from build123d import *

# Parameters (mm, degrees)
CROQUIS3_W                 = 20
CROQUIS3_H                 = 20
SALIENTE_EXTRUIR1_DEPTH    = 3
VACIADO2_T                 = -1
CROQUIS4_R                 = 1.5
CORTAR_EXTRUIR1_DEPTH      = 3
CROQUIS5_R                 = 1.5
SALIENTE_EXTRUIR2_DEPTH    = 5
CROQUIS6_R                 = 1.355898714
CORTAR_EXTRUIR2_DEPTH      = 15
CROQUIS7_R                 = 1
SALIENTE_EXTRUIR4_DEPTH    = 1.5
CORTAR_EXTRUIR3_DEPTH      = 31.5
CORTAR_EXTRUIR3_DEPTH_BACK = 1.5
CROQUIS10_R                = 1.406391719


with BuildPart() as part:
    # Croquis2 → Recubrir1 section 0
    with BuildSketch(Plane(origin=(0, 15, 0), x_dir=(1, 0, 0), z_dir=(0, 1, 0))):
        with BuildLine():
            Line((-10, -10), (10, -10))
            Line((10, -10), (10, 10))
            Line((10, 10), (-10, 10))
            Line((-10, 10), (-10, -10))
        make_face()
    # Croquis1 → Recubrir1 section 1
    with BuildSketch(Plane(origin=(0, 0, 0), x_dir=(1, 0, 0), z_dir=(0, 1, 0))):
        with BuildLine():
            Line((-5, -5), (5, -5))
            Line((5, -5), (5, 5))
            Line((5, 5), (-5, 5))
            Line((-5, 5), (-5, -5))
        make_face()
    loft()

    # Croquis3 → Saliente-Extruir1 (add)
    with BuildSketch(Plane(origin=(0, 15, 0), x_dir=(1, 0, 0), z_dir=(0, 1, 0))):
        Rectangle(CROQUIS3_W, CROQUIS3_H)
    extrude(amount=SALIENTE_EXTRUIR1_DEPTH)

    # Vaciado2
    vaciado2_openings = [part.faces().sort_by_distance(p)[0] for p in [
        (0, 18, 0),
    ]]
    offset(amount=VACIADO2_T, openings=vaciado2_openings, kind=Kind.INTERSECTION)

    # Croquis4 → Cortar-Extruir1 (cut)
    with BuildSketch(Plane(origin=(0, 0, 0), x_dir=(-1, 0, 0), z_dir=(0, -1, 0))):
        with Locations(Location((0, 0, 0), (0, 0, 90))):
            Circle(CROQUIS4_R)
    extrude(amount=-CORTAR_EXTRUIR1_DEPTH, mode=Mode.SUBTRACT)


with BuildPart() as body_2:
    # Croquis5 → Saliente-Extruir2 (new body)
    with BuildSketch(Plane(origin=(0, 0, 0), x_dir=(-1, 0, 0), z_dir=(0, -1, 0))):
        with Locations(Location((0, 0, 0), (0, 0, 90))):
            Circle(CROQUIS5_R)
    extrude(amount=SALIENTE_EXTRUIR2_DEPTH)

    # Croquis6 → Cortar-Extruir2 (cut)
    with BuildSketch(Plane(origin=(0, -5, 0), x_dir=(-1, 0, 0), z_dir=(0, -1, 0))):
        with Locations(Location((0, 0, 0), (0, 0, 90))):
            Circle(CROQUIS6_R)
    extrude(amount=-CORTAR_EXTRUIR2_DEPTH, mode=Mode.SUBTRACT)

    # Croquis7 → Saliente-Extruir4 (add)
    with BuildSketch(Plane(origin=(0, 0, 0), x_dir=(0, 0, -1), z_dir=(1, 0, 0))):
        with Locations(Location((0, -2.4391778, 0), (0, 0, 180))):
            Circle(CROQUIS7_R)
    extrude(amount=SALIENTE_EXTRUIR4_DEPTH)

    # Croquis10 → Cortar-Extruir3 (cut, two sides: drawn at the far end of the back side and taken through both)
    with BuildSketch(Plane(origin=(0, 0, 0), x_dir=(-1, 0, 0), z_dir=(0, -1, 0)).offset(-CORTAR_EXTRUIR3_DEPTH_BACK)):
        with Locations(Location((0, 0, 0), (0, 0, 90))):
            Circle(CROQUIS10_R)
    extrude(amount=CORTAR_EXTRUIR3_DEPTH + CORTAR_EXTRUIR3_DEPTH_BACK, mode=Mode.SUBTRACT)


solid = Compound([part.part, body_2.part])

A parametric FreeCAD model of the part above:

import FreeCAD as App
import Part
import Sketcher
Q = App.Units.Quantity


def faces_at(feature, points):
    """Names of the faces that lie closest to the given points."""
    faces = feature.Shape.Faces
    near = lambda p: min(range(len(faces)), key=lambda i: faces[i].distToShape(Part.Vertex(*p))[0])
    return sorted({f"Face{near(p) + 1}" for p in points})

doc = App.newDocument("Part")
params = doc.addObject("Spreadsheet::Sheet", "Params")
for row, (alias, value) in enumerate([
    ("sketch1_width", "20 mm"),
    ("sketch2_width", "10 mm"),
    ("sketch3_width", "20 mm"),
    ("pad1_length", "3 mm"),
    ("thickness_wall", "1 mm"),
    ("sketch4_diameter", "3 mm"),
    ("pocket1_length", "3 mm"),
    ("sketch5_diameter", "3 mm"),
    ("pad2_length", "5 mm"),
    ("pocket2_length", "15 mm"),
    ("sketch7_diameter", "2 mm"),
    ("pad3_length", "1.5 mm"),
], start=1):
    params.set(f"A{row}", alias)
    params.set(f"B{row}", "=" + value)
    params.setAlias(f"B{row}", alias)

body = doc.addObject("PartDesign::Body", "Body")

sketch1 = body.newObject("Sketcher::SketchObject", "Sketch")
sketch1.AttachmentSupport = (doc.getObject("XZ_Plane"), [""])
sketch1.MapMode = "FlatFace"
sketch1.AttachmentOffset = App.Placement(App.Vector(0, 0, -15), App.Rotation())
sketch1.addGeometry([
    Part.LineSegment(App.Vector(-10, 10, 0), App.Vector(10, 10, 0)),
    Part.LineSegment(App.Vector(10, 10, 0), App.Vector(10, -10, 0)),
    Part.LineSegment(App.Vector(10, -10, 0), App.Vector(-10, -10, 0)),
    Part.LineSegment(App.Vector(-10, -10, 0), App.Vector(-10, 10, 0)),
], False)
sketch1.addConstraint([
    Sketcher.Constraint("Coincident", 0, 2, 1, 1),
    Sketcher.Constraint("Coincident", 1, 2, 2, 1),
    Sketcher.Constraint("Coincident", 2, 2, 3, 1),
    Sketcher.Constraint("Coincident", 3, 2, 0, 1),
    Sketcher.Constraint("Horizontal", 0),
    Sketcher.Constraint("Vertical", 1),
    Sketcher.Constraint("Horizontal", 2),
    Sketcher.Constraint("Vertical", 3),
    Sketcher.Constraint("Symmetric", 0, 2, 2, 2, -1, 1),
    Sketcher.Constraint("Equal", 2, 1),
    Sketcher.Constraint("DistanceX", 0, 1, 0, 2, Q("20 mm")),
])
sketch1.setExpression("Constraints[10]", "Params.sketch1_width")

sketch2 = body.newObject("Sketcher::SketchObject", "Sketch001")
sketch2.AttachmentSupport = (doc.getObject("XZ_Plane"), [""])
sketch2.MapMode = "FlatFace"
sketch2.addGeometry([
    Part.LineSegment(App.Vector(-5, 5, 0), App.Vector(5, 5, 0)),
    Part.LineSegment(App.Vector(5, 5, 0), App.Vector(5, -5, 0)),
    Part.LineSegment(App.Vector(5, -5, 0), App.Vector(-5, -5, 0)),
    Part.LineSegment(App.Vector(-5, -5, 0), App.Vector(-5, 5, 0)),
], False)
sketch2.addConstraint([
    Sketcher.Constraint("Coincident", 0, 2, 1, 1),
    Sketcher.Constraint("Coincident", 1, 2, 2, 1),
    Sketcher.Constraint("Coincident", 2, 2, 3, 1),
    Sketcher.Constraint("Coincident", 3, 2, 0, 1),
    Sketcher.Constraint("Horizontal", 0),
    Sketcher.Constraint("Vertical", 1),
    Sketcher.Constraint("Horizontal", 2),
    Sketcher.Constraint("Vertical", 3),
    Sketcher.Constraint("Symmetric", 0, 2, 2, 2, -1, 1),
    Sketcher.Constraint("Equal", 2, 1),
    Sketcher.Constraint("DistanceX", 0, 1, 0, 2, Q("10 mm")),
])
sketch2.setExpression("Constraints[10]", "Params.sketch2_width")

additiveloft = body.newObject("PartDesign::AdditiveLoft", "AdditiveLoft")
additiveloft.Profile = sketch1
additiveloft.Sections = [sketch2]

sketch3 = body.newObject("Sketcher::SketchObject", "Sketch002")
sketch3.AttachmentSupport = (doc.getObject("XZ_Plane"), [""])
sketch3.MapMode = "FlatFace"
sketch3.AttachmentOffset = App.Placement(App.Vector(0, 0, -15), App.Rotation())
sketch3.addGeometry([
    Part.LineSegment(App.Vector(-10, -10, 0), App.Vector(-10, 10, 0)),
    Part.LineSegment(App.Vector(-10, 10, 0), App.Vector(10, 10, 0)),
    Part.LineSegment(App.Vector(10, 10, 0), App.Vector(10, -10, 0)),
    Part.LineSegment(App.Vector(10, -10, 0), App.Vector(-10, -10, 0)),
], False)
sketch3.addConstraint([
    Sketcher.Constraint("Coincident", 0, 2, 1, 1),
    Sketcher.Constraint("Coincident", 1, 2, 2, 1),
    Sketcher.Constraint("Coincident", 2, 2, 3, 1),
    Sketcher.Constraint("Coincident", 3, 2, 0, 1),
    Sketcher.Constraint("Vertical", 0),
    Sketcher.Constraint("Horizontal", 1),
    Sketcher.Constraint("Vertical", 2),
    Sketcher.Constraint("Horizontal", 3),
    Sketcher.Constraint("Symmetric", 0, 2, 2, 2, -1, 1),
    Sketcher.Constraint("Equal", 3, 0),
    Sketcher.Constraint("DistanceX", 1, 1, 1, 2, Q("20 mm")),
])
sketch3.setExpression("Constraints[10]", "Params.sketch3_width")
pad1 = body.newObject("PartDesign::Pad", "Pad")
pad1.Profile = sketch3
pad1.setExpression("Length", "Params.pad1_length")
pad1.Reversed = True
doc.recompute()

thickness = body.newObject("PartDesign::Thickness", "Thickness")
thickness.Base = (pad1, faces_at(pad1, [(0, 18, 0)]))
thickness.setExpression("Value", "Params.thickness_wall")
thickness.Reversed = True
thickness.Join = "Intersection"

sketch4 = body.newObject("Sketcher::SketchObject", "Sketch003")
sketch4.AttachmentSupport = (doc.getObject("XZ_Plane"), [""])
sketch4.MapMode = "FlatFace"
sketch4.addGeometry(Part.Circle(App.Vector(0, 0, 0), App.Vector(0, 0, 1), 1.5), False)
sketch4.addConstraint([
    Sketcher.Constraint("Coincident", 0, 3, -1, 1),
    Sketcher.Constraint("Diameter", 0, Q("3 mm")),
])
sketch4.setExpression("Constraints[1]", "Params.sketch4_diameter")
pocket1 = body.newObject("PartDesign::Pocket", "Pocket")
pocket1.Profile = sketch4
pocket1.setExpression("Length", "Params.pocket1_length")
body2 = doc.addObject("PartDesign::Body", "Body001")

sketch5 = body2.newObject("Sketcher::SketchObject", "Sketch004")
sketch5.AttachmentSupport = (doc.getObject("XZ_Plane001"), [""])
sketch5.MapMode = "FlatFace"
sketch5.addGeometry(Part.Circle(App.Vector(0, 0, 0), App.Vector(0, 0, 1), 1.5), False)
sketch5.addConstraint([
    Sketcher.Constraint("Coincident", 0, 3, -1, 1),
    Sketcher.Constraint("Diameter", 0, Q("3 mm")),
])
sketch5.setExpression("Constraints[1]", "Params.sketch5_diameter")
pad2 = body2.newObject("PartDesign::Pad", "Pad001")
pad2.Profile = sketch5
pad2.setExpression("Length", "Params.pad2_length")

sketch6 = body2.newObject("Sketcher::SketchObject", "Sketch005")
sketch6.AttachmentSupport = (doc.getObject("XZ_Plane001"), [""])
sketch6.MapMode = "FlatFace"
sketch6.AttachmentOffset = App.Placement(App.Vector(0, 0, 5), App.Rotation())
sketch6.addGeometry(Part.Circle(App.Vector(0, 0, 0), App.Vector(0, 0, 1), 1.4), False)
sketch6.addConstraint([
    Sketcher.Constraint("Coincident", 0, 3, -1, 1),
    Sketcher.Constraint("Diameter", 0, Q("2.711797 mm")),
])
pocket2 = body2.newObject("PartDesign::Pocket", "Pocket001")
pocket2.Profile = sketch6
pocket2.setExpression("Length", "Params.pocket2_length")

sketch7 = body2.newObject("Sketcher::SketchObject", "Sketch006")
sketch7.AttachmentSupport = (doc.getObject("YZ_Plane001"), [""])
sketch7.MapMode = "FlatFace"
sketch7.addGeometry(Part.Circle(App.Vector(-2.4, 0, 0), App.Vector(0, 0, 1), 1), False)
sketch7.addConstraint([
    Sketcher.Constraint("PointOnObject", 0, 3, -1),
    Sketcher.Constraint("Diameter", 0, Q("2 mm")),
    Sketcher.Constraint("DistanceX", 0, 3, -1, 1, Q("2.439178 mm")),
])
sketch7.setExpression("Constraints[1]", "Params.sketch7_diameter")
pad3 = body2.newObject("PartDesign::Pad", "Pad002")
pad3.Profile = sketch7
pad3.setExpression("Length", "Params.pad3_length")

sketch8 = body2.newObject("Sketcher::SketchObject", "Sketch007")
sketch8.AttachmentSupport = (doc.getObject("XZ_Plane001"), [""])
sketch8.MapMode = "FlatFace"
sketch8.addGeometry(Part.Circle(App.Vector(0, 0, 0), App.Vector(0, 0, 1), 1.4), False)
sketch8.addConstraint([
    Sketcher.Constraint("Coincident", 0, 3, -1, 1),
    Sketcher.Constraint("Diameter", 0, Q("2.812783 mm")),
])
pocket3 = body2.newObject("PartDesign::Pocket", "Pocket002")
pocket3.Profile = sketch8
pocket3.Type = "ThroughAll"
pocket3.Midplane = True

doc.recompute()
